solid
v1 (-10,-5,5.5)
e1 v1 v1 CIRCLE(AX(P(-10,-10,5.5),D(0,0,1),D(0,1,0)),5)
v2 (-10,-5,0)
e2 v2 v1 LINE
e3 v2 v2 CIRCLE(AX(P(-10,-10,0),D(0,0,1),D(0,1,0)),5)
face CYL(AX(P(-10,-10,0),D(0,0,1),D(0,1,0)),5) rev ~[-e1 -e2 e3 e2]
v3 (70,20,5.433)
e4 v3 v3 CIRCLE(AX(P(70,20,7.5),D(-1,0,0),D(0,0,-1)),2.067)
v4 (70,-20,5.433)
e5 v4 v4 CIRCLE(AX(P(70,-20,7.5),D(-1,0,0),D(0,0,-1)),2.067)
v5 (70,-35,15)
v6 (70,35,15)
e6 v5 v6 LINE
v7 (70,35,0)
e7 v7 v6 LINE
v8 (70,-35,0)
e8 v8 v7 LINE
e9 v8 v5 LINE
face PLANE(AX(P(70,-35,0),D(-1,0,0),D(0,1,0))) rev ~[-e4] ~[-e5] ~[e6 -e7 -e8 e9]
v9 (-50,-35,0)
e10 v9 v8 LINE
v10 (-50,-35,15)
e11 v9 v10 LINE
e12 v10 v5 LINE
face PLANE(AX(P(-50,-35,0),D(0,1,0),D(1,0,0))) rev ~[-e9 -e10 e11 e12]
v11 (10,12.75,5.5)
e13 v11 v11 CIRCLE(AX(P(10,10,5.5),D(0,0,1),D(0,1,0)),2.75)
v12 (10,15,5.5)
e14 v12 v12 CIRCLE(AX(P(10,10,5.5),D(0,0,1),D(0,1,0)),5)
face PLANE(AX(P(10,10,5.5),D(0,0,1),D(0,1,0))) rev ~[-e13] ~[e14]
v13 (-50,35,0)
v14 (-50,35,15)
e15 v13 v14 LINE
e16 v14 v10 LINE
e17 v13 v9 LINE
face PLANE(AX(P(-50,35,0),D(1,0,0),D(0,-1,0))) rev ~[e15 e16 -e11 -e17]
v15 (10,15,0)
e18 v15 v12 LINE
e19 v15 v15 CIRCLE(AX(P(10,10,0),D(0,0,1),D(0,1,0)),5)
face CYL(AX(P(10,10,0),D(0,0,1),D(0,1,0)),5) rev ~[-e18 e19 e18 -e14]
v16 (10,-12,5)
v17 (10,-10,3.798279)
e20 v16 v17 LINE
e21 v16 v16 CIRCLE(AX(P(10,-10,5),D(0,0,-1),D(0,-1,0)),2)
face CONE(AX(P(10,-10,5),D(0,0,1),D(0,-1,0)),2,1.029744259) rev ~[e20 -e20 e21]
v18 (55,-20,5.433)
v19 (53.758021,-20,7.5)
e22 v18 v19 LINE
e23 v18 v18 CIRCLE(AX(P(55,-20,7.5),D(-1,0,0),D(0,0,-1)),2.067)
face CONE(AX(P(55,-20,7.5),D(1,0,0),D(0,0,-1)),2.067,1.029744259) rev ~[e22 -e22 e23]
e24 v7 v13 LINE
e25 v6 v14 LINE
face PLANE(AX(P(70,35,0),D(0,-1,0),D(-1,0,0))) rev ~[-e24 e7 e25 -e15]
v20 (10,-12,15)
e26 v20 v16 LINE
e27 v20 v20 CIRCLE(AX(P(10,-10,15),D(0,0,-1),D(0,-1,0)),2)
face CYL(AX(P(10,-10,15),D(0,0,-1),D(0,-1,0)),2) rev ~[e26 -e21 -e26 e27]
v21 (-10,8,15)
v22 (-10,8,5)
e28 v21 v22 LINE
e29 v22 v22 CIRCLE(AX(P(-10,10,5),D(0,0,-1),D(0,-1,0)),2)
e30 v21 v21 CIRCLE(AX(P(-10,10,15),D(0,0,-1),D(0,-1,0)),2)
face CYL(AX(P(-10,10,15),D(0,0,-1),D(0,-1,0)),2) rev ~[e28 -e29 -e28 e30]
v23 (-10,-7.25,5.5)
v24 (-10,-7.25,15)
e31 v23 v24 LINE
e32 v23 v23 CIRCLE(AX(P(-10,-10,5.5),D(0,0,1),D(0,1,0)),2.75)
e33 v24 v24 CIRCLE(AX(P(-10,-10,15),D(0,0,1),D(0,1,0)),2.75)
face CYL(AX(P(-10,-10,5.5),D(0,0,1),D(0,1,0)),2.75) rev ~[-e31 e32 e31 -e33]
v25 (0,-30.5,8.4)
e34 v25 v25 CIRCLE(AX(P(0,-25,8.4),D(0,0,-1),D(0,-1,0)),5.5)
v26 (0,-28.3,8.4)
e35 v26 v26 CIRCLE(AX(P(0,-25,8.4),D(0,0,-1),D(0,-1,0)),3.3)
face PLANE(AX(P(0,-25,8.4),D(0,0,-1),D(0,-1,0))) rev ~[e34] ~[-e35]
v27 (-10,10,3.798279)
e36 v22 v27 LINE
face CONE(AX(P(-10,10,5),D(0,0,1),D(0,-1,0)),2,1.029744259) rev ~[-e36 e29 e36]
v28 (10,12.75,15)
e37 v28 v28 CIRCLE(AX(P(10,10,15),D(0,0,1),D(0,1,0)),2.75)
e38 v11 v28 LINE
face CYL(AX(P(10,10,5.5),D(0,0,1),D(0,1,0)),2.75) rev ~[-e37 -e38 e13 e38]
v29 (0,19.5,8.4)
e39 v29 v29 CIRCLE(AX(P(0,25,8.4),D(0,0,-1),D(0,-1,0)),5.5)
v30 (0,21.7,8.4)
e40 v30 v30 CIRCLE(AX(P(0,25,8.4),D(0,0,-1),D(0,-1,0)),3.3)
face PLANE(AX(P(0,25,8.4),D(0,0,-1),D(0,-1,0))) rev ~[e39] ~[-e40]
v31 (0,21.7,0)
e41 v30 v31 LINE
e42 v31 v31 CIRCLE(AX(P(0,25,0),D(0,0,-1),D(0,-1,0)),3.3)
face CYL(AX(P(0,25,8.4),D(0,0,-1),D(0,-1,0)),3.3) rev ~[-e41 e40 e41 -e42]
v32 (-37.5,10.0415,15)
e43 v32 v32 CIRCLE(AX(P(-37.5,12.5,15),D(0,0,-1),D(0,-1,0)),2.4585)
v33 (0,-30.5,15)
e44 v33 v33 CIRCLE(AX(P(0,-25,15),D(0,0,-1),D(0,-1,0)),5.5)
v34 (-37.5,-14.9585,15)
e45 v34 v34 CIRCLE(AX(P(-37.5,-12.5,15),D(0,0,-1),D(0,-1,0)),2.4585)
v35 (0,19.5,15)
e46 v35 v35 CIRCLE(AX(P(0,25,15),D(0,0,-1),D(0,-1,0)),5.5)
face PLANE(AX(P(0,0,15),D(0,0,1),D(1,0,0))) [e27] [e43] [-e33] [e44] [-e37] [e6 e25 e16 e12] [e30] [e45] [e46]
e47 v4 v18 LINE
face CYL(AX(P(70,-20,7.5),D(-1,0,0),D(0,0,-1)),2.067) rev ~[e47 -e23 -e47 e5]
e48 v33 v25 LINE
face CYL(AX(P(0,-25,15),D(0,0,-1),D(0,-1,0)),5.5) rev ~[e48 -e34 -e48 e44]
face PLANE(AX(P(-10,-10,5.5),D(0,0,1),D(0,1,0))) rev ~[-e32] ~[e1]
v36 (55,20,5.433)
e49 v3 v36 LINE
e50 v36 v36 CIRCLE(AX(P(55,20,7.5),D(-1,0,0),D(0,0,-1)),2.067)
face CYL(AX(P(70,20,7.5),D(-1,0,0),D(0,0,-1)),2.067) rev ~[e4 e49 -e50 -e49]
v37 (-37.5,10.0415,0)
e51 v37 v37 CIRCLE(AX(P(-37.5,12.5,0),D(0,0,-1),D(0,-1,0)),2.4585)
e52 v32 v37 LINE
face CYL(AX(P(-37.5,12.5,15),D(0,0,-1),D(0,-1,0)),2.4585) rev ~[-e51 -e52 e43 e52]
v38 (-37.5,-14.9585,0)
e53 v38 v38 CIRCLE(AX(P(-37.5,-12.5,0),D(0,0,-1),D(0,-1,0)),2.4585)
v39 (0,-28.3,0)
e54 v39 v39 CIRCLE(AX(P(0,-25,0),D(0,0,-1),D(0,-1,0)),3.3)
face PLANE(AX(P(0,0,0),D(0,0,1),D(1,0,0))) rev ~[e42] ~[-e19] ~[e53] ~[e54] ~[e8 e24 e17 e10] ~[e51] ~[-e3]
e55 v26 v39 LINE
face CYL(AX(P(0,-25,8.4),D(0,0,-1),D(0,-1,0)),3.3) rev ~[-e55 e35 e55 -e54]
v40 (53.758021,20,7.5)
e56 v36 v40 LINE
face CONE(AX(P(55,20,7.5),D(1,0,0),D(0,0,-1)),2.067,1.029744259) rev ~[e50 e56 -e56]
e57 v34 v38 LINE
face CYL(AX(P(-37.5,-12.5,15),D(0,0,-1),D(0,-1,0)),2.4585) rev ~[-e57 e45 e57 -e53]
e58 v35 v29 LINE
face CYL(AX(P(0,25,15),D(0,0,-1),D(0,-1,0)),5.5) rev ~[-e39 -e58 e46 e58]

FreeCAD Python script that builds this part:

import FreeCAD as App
import Part
import Sketcher
from FreeCAD import Vector
Q = App.Units.Quantity


def add_polygon(sketch, points):
    """Adds a closed chain of lines whose ends are joined by coincident constraints."""
    first, n = sketch.GeometryCount, len(points)
    for a, b in zip(points, points[1:] + points[:1]):
        sketch.addGeometry(Part.LineSegment(App.Vector(*a, 0), App.Vector(*b, 0)), False)
    for i in range(n):
        sketch.addConstraint(Sketcher.Constraint("Coincident", first + i, 2, first + (i + 1) % n, 1))

doc = App.newDocument("Part")
params = doc.addObject("Spreadsheet::Sheet", "Params")
for row, (alias, value) in enumerate([
    ("sketch1_width", "120 mm"),
    ("sketch1_height", "70 mm"),
    ("pad1_length", "15 mm"),
    ("sketch2_diameter", "6.6 mm"),
    ("hole_diameter", "6.6 mm"),
    ("hole_cbore_diameter", "11 mm"),
    ("hole_cbore_depth", "6.6 mm"),
    ("hole2_diameter", "4.917 mm"),
    ("sketch4_diameter", "5.5 mm"),
    ("hole3_diameter", "5.5 mm"),
    ("hole3_cbore_diameter", "10 mm"),
    ("hole3_cbore_depth", "5.5 mm"),
    ("sketch5_diameter", "4 mm"),
    ("hole4_diameter", "4 mm"),
    ("hole4_depth", "10 mm"),
    ("hole5_diameter", "4.134 mm"),
    ("hole5_depth", "15 mm"),
], start=1):
    params.set(f"A{row}", alias)
    params.set(f"B{row}", "=" + value)
    params.setAlias(f"B{row}", alias)

body = doc.addObject("PartDesign::Body", "Body")

sketch1 = body.newObject("Sketcher::SketchObject", "Sketch")
sketch1.AttachmentSupport = (doc.getObject("XY_Plane"), [""])
sketch1.MapMode = "FlatFace"
add_polygon(sketch1, [(-50, 35), (-50, -35), (70, -35), (70, 35)])
sketch1.addConstraint(Sketcher.Constraint("Vertical", 0))
sketch1.addConstraint(Sketcher.Constraint("Horizontal", 1))
sketch1.addConstraint(Sketcher.Constraint("Vertical", 2))
sketch1.addConstraint(Sketcher.Constraint("Horizontal", 3))
sketch1.addConstraint(Sketcher.Constraint("DistanceX", 1, 1, 1, 2, Q("120 mm")))
sketch1.addConstraint(Sketcher.Constraint("DistanceY", 0, 2, 0, 1, Q("70 mm")))
sketch1.addConstraint(Sketcher.Constraint("DistanceX", 0, 2, -1, 1, Q("50 mm")))
sketch1.addConstraint(Sketcher.Constraint("DistanceY", 0, 2, -1, 1, Q("35 mm")))
sketch1.setExpression("Constraints[8]", "Params.sketch1_width")
sketch1.setExpression("Constraints[9]", "Params.sketch1_height")
pad1 = body.newObject("PartDesign::Pad", "Pad")
pad1.Profile = sketch1
pad1.setExpression("Length", "Params.pad1_length")

sketch2 = body.newObject("Sketcher::SketchObject", "Sketch001")
sketch2.AttachmentSupport = (doc.getObject("XY_Plane"), [""])
sketch2.MapMode = "FlatFace"
sketch2.AttachmentOffset = App.Placement(Vector(0, 0, 15), App.Rotation())
sketch2.addGeometry(Part.Circle(Vector(0, -25, 0), Vector(0, 0, 1), 3.3), False)
sketch2.addGeometry(Part.Circle(Vector(0, 25, 0), Vector(0, 0, 1), 3.3), False)
sketch2.addConstraint(Sketcher.Constraint("Equal", 0, 1))
sketch2.addConstraint(Sketcher.Constraint("Symmetric", 0, 3, 1, 3, -1, 1))
sketch2.addConstraint(Sketcher.Constraint("PointOnObject", 0, 3, -2))
sketch2.addConstraint(Sketcher.Constraint("Diameter", 0, Q("6.6 mm")))
sketch2.addConstraint(Sketcher.Constraint("DistanceY", 0, 3, -1, 1, Q("25 mm")))
sketch2.setExpression("Constraints[3]", "Params.sketch2_diameter")
doc.recompute()
hole = body.newObject("PartDesign::Hole", "Hole")
hole.Profile = sketch2
hole.ThreadType = "None"
hole.setExpression("Diameter", "Params.hole_diameter")
hole.DepthType = "ThroughAll"
hole.HoleCutType = "Counterbore"
hole.setExpression("HoleCutDiameter", "Params.hole_cbore_diameter")
hole.setExpression("HoleCutDepth", "Params.hole_cbore_depth")

sketch3 = body.newObject("Sketcher::SketchObject", "Sketch002")
sketch3.AttachmentSupport = (doc.getObject("XY_Plane"), [""])
sketch3.MapMode = "FlatFace"
sketch3.AttachmentOffset = App.Placement(Vector(0, 0, 15), App.Rotation())
sketch3.addGeometry(Part.Circle(Vector(-37.5, -12.5, 0), Vector(0, 0, 1), 2.5), False)
sketch3.addGeometry(Part.Circle(Vector(-37.5, 12.5, 0), Vector(0, 0, 1), 2.5), False)
sketch3.addConstraint(Sketcher.Constraint("Equal", 0, 1))
sketch3.addConstraint(Sketcher.Constraint("Symmetric", 0, 3, 1, 3, -1))
sketch3.addConstraint(Sketcher.Constraint("Diameter", 0, Q("4.917 mm")))
sketch3.addConstraint(Sketcher.Constraint("DistanceY", 0, 3, 1, 3, Q("25 mm")))
sketch3.addConstraint(Sketcher.Constraint("DistanceX", 0, 3, -1, 1, Q("37.5 mm")))
doc.recompute()
hole2 = body.newObject("PartDesign::Hole", "Hole001")
hole2.Profile = sketch3
hole2.ThreadType = "None"
hole2.setExpression("Diameter", "Params.hole2_diameter")
hole2.DepthType = "ThroughAll"

sketch4 = body.newObject("Sketcher::SketchObject", "Sketch003")
sketch4.AttachmentSupport = (doc.getObject("XY_Plane"), [""])
sketch4.MapMode = "FlatFace"
sketch4.addGeometry(Part.Circle(Vector(-10, -10, 0), Vector(0, 0, 1), 2.8), False)
sketch4.addGeometry(Part.Circle(Vector(10, 10, 0), Vector(0, 0, 1), 2.8), False)
sketch4.addConstraint(Sketcher.Constraint("Equal", 0, 1))
sketch4.addConstraint(Sketcher.Constraint("Symmetric", 0, 3, 1, 3, -1, 1))
sketch4.addConstraint(Sketcher.Constraint("Diameter", 0, Q("5.5 mm")))
sketch4.addConstraint(Sketcher.Constraint("DistanceX", 0, 3, -1, 1, Q("10 mm")))
sketch4.addConstraint(Sketcher.Constraint("DistanceY", 0, 3, -1, 1, Q("10 mm")))
sketch4.setExpression("Constraints[2]", "Params.sketch4_diameter")
doc.recompute()
hole3 = body.newObject("PartDesign::Hole", "Hole002")
hole3.Profile = sketch4
hole3.ThreadType = "None"
hole3.setExpression("Diameter", "Params.hole3_diameter")
hole3.DepthType = "ThroughAll"
hole3.HoleCutType = "Counterbore"
hole3.setExpression("HoleCutDiameter", "Params.hole3_cbore_diameter")
hole3.setExpression("HoleCutDepth", "Params.hole3_cbore_depth")
hole3.Reversed = True

sketch5 = body.newObject("Sketcher::SketchObject", "Sketch004")
sketch5.AttachmentSupport = (doc.getObject("XY_Plane"), [""])
sketch5.MapMode = "FlatFace"
sketch5.AttachmentOffset = App.Placement(Vector(0, 0, 15), App.Rotation())
sketch5.addGeometry(Part.Circle(Vector(10, -10, 0), Vector(0, 0, 1), 2), False)
sketch5.addGeometry(Part.Circle(Vector(-10, 10, 0), Vector(0, 0, 1), 2), False)
sketch5.addConstraint(Sketcher.Constraint("Equal", 0, 1))
sketch5.addConstraint(Sketcher.Constraint("Symmetric", 0, 3, 1, 3, -1, 1))
sketch5.addConstraint(Sketcher.Constraint("Diameter", 0, Q("4 mm")))
sketch5.addConstraint(Sketcher.Constraint("DistanceX", -1, 1, 0, 3, Q("10 mm")))
sketch5.addConstraint(Sketcher.Constraint("DistanceY", 0, 3, -1, 1, Q("10 mm")))
sketch5.setExpression("Constraints[2]", "Params.sketch5_diameter")
doc.recompute()
hole4 = body.newObject("PartDesign::Hole", "Hole003")
hole4.Profile = sketch5
hole4.ThreadType = "None"
hole4.setExpression("Diameter", "Params.hole4_diameter")
hole4.DepthType = "Dimension"
hole4.setExpression("Depth", "Params.hole4_depth")
hole4.DrillPoint = "Angled"
hole4.DrillPointAngle = 118

sketch6 = body.newObject("Sketcher::SketchObject", "Sketch005")
sketch6.AttachmentSupport = (doc.getObject("YZ_Plane"), [""])
sketch6.MapMode = "FlatFace"
sketch6.AttachmentOffset = App.Placement(Vector(0, 0, 70), App.Rotation())
sketch6.addGeometry(Part.Circle(Vector(-20, 7.5, 0), Vector(0, 0, 1), 2.1), False)
sketch6.addGeometry(Part.Circle(Vector(20, 7.5, 0), Vector(0, 0, 1), 2.1), False)
sketch6.addConstraint(Sketcher.Constraint("Equal", 0, 1))
sketch6.addConstraint(Sketcher.Constraint("Symmetric", 0, 3, 1, 3, -2))
sketch6.addConstraint(Sketcher.Constraint("Diameter", 0, Q("4.134 mm")))
sketch6.addConstraint(Sketcher.Constraint("DistanceX", 0, 3, -1, 1, Q("20 mm")))
sketch6.addConstraint(Sketcher.Constraint("DistanceY", -1, 1, 0, 3, Q("7.5 mm")))
doc.recompute()
hole5 = body.newObject("PartDesign::Hole", "Hole004")
hole5.Profile = sketch6
hole5.ThreadType = "None"
hole5.setExpression("Diameter", "Params.hole5_diameter")
hole5.DepthType = "Dimension"
hole5.setExpression("Depth", "Params.hole5_depth")
hole5.DrillPoint = "Angled"
hole5.DrillPointAngle = 118

doc.recompute()
